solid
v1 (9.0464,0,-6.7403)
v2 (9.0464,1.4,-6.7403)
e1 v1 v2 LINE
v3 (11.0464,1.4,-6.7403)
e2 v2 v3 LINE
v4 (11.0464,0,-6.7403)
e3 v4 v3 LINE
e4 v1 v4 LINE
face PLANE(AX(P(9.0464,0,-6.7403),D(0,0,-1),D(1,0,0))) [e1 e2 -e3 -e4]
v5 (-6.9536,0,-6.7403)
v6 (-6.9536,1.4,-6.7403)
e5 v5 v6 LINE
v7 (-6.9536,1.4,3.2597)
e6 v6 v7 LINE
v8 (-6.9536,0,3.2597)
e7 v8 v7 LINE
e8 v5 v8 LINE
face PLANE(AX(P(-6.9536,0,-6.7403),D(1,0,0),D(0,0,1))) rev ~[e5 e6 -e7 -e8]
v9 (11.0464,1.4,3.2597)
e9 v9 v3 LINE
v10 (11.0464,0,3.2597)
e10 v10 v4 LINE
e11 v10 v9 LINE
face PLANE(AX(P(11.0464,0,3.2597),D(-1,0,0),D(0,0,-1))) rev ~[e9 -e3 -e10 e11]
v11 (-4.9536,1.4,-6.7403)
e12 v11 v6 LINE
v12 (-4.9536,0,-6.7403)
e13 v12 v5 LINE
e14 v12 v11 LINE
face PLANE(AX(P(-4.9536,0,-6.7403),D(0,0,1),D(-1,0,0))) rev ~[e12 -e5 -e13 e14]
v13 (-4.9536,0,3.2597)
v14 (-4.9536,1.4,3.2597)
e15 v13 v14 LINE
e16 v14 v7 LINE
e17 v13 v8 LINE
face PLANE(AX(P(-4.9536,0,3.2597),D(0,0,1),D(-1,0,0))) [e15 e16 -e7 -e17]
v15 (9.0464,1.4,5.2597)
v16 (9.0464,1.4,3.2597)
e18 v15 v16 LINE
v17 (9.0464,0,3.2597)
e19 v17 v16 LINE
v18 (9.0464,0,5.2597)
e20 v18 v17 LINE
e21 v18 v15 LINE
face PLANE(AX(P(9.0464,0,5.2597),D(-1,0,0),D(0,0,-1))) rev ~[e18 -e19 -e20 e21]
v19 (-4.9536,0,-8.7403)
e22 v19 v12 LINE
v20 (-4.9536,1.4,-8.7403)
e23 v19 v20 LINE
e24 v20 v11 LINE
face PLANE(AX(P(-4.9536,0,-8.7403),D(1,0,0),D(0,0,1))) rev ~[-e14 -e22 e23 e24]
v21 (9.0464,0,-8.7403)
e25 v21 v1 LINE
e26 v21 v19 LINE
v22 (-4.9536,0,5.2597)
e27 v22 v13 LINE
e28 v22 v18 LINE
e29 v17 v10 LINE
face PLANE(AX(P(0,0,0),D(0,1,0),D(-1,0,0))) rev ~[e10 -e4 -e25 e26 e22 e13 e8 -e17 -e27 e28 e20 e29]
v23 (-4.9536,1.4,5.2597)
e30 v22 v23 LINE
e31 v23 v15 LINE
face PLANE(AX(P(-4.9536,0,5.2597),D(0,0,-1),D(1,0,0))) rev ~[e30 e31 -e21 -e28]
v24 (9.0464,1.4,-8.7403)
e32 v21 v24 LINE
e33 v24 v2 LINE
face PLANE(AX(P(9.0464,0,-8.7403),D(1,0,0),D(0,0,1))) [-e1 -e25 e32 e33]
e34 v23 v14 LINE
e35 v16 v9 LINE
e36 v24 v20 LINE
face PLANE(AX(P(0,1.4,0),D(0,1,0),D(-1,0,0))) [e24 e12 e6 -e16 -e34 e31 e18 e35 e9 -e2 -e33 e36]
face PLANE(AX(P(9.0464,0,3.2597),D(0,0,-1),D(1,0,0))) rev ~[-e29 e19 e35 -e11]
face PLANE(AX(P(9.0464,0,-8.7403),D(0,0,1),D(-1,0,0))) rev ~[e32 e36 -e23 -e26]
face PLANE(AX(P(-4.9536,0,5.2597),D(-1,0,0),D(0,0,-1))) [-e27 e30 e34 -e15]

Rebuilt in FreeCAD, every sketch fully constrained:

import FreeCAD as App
import Part
import Sketcher
Q = App.Units.Quantity

doc = App.newDocument("Part")
body = doc.addObject("PartDesign::Body", "Body")

# Sketch on XZ plane
sketch1 = doc.addObject("Sketcher::SketchObject", "Sketch")
body.addObject(sketch1)
sketch1.AttachmentSupport = (doc.XZ_Plane, [""])
sketch1.MapMode = "FlatFace"
sketch1.addGeometry([
    Part.LineSegment(App.Vector(-4.9536, 3.2597, 0), App.Vector(-4.9536, 5.2597, 0)),  # 0
    Part.LineSegment(App.Vector(-4.9536, 5.2597, 0), App.Vector(9.0464, 5.2597, 0)),  # 1
    Part.LineSegment(App.Vector(9.0464, 5.2597, 0), App.Vector(9.0464, 3.2597, 0)),  # 2
    Part.LineSegment(App.Vector(9.0464, 3.2597, 0), App.Vector(11.0464, 3.2597, 0)),  # 3
    Part.LineSegment(App.Vector(11.0464, 3.2597, 0), App.Vector(11.0464, -6.7403, 0)),  # 4
    Part.LineSegment(App.Vector(11.0464, -6.7403, 0), App.Vector(9.0464, -6.7403, 0)),  # 5
    Part.LineSegment(App.Vector(9.0464, -6.7403, 0), App.Vector(9.0464, -8.7403, 0)),  # 6
    Part.LineSegment(App.Vector(9.0464, -8.7403, 0), App.Vector(-4.9536, -8.7403, 0)),  # 7
    Part.LineSegment(App.Vector(-4.9536, -8.7403, 0), App.Vector(-4.9536, -6.7403, 0)),  # 8
    Part.LineSegment(App.Vector(-4.9536, -6.7403, 0), App.Vector(-6.9536, -6.7403, 0)),  # 9
    Part.LineSegment(App.Vector(-6.9536, -6.7403, 0), App.Vector(-6.9536, 3.2597, 0)),  # 10
    Part.LineSegment(App.Vector(-6.9536, 3.2597, 0), App.Vector(-4.9536, 3.2597, 0)),  # 11
], False)
sketch1.addConstraint([
    Sketcher.Constraint("Coincident", 0, 2, 1, 1),
    Sketcher.Constraint("Coincident", 1, 2, 2, 1),
    Sketcher.Constraint("Coincident", 2, 2, 3, 1),
    Sketcher.Constraint("Coincident", 3, 2, 4, 1),
    Sketcher.Constraint("Coincident", 4, 2, 5, 1),
    Sketcher.Constraint("Coincident", 5, 2, 6, 1),
    Sketcher.Constraint("Coincident", 6, 2, 7, 1),
    Sketcher.Constraint("Coincident", 7, 2, 8, 1),
    Sketcher.Constraint("Coincident", 8, 2, 9, 1),
    Sketcher.Constraint("Coincident", 9, 2, 10, 1),
    Sketcher.Constraint("Coincident", 10, 2, 11, 1),
    Sketcher.Constraint("Coincident", 11, 2, 0, 1),
    Sketcher.Constraint("Vertical", 0),
    Sketcher.Constraint("Horizontal", 1),
    Sketcher.Constraint("Vertical", 2),
    Sketcher.Constraint("Horizontal", 3),
    Sketcher.Constraint("Vertical", 4),
    Sketcher.Constraint("Horizontal", 5),
    Sketcher.Constraint("Vertical", 6),
    Sketcher.Constraint("Horizontal", 7),
    Sketcher.Constraint("Vertical", 8),
    Sketcher.Constraint("Horizontal", 9),
    Sketcher.Constraint("Vertical", 10),
    Sketcher.Constraint("Horizontal", 11),
    Sketcher.Constraint("Horizontal", 5, 2, 8, 2),
    Sketcher.Constraint("Horizontal", 3, 2, 10, 2),
    Sketcher.Constraint("Vertical", 2, 2, 5, 2),
    Sketcher.Constraint("Vertical", 0, 2, 7, 2),
    Sketcher.Constraint("Equal", 5, 9),
    Sketcher.Constraint("Equal", 11, 0),
    Sketcher.Constraint("Equal", 2, 6),
    Sketcher.Constraint("DistanceX", 3, 1, 3, 2, Q("2 mm")),
    Sketcher.Constraint("DistanceY", 4, 2, 4, 1, Q("10 mm")),
    Sketcher.Constraint("DistanceX", 1, 1, 1, 2, Q("14 mm")),
    Sketcher.Constraint("DistanceX", 0, 2, -1, 1, Q("4.9536 mm")),
    Sketcher.Constraint("DistanceY", -1, 1, 0, 2, Q("5.2597 mm")),
])
pad1 = doc.addObject("PartDesign::Pad", "Pad")
body.addObject(pad1)
pad1.Profile = sketch1
pad1.Length = 1.4
pad1.Reversed = True

doc.recompute()
